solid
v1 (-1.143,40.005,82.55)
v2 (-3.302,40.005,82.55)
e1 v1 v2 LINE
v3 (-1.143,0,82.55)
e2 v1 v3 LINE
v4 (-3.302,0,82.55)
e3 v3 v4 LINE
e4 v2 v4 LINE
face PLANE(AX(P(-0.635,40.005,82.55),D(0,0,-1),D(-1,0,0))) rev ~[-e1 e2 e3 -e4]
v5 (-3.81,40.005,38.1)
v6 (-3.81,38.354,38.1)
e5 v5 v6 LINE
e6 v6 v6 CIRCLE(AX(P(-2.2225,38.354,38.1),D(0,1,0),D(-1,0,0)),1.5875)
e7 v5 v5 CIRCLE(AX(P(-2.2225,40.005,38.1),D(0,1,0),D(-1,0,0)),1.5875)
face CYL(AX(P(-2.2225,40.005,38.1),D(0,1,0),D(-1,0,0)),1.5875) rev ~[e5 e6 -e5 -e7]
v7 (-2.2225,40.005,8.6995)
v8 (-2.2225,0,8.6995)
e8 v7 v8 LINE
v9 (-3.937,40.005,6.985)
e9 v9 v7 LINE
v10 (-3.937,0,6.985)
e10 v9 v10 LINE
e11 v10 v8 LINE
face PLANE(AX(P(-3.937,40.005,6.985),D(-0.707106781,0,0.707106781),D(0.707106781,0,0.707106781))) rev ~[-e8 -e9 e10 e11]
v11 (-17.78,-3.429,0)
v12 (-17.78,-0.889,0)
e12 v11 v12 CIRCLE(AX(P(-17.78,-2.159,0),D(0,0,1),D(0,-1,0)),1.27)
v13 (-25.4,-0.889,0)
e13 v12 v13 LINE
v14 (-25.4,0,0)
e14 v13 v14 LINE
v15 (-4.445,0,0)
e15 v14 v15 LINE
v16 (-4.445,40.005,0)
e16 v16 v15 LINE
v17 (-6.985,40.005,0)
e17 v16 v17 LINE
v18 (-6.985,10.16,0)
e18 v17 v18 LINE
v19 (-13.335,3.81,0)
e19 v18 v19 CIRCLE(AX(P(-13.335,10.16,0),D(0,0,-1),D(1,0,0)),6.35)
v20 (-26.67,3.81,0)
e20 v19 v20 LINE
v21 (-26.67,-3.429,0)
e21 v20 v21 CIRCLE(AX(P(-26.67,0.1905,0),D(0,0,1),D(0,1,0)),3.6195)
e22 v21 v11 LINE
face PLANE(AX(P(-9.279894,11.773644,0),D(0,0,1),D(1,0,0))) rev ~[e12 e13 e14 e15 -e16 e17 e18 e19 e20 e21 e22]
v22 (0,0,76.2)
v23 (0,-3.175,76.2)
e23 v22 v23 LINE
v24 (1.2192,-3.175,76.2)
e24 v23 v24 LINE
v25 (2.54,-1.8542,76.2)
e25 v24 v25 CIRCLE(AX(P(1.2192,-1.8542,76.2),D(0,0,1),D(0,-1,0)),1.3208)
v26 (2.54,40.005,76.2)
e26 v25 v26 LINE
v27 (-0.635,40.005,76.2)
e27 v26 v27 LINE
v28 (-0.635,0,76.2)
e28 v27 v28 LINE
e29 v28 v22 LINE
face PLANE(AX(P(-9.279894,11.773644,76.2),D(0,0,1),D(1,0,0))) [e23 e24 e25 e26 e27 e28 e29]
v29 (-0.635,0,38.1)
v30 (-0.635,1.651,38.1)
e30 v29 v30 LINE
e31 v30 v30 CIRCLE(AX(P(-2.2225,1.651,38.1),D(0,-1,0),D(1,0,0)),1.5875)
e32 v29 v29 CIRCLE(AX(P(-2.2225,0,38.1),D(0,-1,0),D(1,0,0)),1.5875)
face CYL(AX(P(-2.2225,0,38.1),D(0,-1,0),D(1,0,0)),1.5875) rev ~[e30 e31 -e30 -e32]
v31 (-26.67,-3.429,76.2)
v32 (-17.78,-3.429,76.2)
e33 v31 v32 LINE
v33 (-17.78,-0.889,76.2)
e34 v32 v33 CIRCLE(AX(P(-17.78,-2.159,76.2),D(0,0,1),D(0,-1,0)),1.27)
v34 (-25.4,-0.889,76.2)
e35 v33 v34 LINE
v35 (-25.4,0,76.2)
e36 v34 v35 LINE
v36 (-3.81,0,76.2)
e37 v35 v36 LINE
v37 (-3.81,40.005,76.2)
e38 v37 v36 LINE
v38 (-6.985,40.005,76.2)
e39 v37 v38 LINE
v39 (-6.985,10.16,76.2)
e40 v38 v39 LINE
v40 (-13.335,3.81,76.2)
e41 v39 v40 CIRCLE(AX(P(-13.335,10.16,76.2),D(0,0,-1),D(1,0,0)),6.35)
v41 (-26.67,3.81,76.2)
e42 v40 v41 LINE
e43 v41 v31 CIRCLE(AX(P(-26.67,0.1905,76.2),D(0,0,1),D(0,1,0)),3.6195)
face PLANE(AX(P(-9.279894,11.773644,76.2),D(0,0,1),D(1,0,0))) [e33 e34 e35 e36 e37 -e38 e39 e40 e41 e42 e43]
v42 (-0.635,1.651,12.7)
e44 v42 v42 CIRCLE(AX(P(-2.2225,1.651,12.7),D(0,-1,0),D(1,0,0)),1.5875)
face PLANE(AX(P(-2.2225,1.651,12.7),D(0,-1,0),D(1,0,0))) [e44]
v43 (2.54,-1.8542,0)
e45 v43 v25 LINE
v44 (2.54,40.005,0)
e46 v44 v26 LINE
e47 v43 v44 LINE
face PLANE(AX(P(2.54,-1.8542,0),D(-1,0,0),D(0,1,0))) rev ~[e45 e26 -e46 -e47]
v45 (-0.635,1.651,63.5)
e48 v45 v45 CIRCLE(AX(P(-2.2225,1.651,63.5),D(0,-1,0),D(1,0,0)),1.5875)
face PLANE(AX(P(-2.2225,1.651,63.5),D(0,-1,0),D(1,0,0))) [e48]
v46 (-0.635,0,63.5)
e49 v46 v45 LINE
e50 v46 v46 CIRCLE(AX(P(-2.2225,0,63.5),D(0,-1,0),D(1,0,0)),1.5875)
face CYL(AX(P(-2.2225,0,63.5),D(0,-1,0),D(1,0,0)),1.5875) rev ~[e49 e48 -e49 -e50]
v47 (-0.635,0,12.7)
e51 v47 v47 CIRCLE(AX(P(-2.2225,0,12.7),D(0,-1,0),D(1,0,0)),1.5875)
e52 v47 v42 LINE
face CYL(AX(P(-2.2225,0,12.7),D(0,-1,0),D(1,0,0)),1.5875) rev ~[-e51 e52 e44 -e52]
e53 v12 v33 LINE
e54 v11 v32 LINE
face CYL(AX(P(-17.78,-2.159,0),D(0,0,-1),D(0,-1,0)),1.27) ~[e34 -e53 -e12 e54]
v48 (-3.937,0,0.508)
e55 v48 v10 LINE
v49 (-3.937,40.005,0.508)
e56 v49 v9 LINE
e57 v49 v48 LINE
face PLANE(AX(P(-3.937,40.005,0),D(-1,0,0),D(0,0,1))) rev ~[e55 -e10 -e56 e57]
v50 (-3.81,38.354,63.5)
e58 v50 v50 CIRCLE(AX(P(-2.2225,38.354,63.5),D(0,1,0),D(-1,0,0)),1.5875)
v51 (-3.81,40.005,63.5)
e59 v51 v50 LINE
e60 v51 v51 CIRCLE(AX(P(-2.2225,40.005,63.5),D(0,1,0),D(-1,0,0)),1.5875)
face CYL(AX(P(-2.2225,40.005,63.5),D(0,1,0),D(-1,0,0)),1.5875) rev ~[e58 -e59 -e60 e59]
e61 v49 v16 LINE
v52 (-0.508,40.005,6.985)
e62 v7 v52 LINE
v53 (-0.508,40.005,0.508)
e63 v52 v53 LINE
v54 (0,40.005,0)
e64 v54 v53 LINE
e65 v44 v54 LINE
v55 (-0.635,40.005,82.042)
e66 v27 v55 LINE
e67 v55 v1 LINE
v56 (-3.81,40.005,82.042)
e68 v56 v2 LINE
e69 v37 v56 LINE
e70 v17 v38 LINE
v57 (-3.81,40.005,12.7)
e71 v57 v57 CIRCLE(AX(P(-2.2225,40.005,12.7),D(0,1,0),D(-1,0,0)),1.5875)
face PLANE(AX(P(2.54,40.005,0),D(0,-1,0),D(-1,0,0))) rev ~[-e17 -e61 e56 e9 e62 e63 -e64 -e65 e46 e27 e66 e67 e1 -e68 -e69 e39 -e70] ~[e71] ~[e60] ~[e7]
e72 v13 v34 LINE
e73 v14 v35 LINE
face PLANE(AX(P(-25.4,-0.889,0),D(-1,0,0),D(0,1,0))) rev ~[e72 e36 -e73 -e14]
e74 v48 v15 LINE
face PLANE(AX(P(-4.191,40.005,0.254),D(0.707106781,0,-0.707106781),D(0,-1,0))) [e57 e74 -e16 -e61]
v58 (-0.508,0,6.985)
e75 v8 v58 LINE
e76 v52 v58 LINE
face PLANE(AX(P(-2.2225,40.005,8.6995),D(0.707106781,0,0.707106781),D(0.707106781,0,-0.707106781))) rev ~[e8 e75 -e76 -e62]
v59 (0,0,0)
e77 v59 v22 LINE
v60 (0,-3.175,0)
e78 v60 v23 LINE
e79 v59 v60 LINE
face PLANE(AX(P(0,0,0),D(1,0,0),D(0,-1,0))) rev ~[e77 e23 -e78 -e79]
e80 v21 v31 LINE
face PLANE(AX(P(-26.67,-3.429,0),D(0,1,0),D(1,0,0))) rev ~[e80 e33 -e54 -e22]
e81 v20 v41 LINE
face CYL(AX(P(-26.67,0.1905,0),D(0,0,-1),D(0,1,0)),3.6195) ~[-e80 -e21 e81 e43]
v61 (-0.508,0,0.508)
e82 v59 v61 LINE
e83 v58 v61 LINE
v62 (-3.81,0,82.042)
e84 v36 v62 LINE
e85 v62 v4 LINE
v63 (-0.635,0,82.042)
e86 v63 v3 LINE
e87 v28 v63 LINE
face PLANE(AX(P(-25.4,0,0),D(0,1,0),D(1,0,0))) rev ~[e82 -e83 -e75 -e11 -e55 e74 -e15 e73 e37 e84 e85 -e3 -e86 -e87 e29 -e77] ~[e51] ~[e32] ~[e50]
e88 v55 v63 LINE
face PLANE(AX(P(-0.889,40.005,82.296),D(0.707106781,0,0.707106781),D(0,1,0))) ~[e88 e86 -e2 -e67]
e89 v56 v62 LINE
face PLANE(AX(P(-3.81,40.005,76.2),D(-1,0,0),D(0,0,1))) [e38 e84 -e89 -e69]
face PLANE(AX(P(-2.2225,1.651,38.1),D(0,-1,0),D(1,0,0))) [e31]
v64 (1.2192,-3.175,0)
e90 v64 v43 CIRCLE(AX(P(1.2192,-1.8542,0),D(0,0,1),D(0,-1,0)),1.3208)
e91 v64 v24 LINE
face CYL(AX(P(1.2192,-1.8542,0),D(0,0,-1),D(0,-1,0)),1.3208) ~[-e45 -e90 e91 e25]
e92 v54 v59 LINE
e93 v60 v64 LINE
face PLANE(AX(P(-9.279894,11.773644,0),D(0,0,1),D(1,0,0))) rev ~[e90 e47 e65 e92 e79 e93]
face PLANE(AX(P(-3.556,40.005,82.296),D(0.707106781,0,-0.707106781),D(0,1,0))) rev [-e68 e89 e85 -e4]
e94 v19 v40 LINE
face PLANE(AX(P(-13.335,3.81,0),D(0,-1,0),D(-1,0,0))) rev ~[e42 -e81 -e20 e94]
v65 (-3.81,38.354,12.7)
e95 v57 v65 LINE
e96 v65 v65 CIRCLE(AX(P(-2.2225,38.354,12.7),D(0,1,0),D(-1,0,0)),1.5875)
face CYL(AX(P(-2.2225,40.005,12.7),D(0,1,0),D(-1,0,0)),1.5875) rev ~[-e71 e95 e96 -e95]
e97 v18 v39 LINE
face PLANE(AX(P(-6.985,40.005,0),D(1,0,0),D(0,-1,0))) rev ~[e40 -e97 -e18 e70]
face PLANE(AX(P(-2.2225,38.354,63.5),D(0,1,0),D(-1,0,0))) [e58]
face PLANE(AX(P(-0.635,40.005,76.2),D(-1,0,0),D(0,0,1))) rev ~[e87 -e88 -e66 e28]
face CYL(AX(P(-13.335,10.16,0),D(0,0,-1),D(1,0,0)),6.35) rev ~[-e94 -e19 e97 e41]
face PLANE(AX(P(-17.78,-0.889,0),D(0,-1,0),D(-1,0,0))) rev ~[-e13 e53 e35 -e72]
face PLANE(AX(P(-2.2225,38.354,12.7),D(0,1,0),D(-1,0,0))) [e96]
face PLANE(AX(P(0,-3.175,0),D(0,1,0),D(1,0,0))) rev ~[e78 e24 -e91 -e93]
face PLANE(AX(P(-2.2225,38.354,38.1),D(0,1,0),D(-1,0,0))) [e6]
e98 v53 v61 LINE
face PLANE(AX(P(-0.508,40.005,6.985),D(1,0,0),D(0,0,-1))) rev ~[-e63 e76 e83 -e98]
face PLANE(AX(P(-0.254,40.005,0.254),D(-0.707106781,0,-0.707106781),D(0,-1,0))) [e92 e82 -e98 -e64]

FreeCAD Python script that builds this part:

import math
import FreeCAD as App
import Part
import Sketcher
from FreeCAD import Vector
Q = App.Units.Quantity


def edges_at(feature, points):
    """Names of the edges that pass closest to the given points."""
    edges = feature.Shape.Edges
    near = lambda p: min(range(len(edges)), key=lambda i: edges[i].distToShape(Part.Vertex(*p))[0])
    return sorted({f"Edge{near(p) + 1}" for p in points})


def add_polygon(sketch, points):
    """Adds a closed chain of lines whose ends are joined by coincident constraints."""
    first, n = sketch.GeometryCount, len(points)
    for a, b in zip(points, points[1:] + points[:1]):
        sketch.addGeometry(Part.LineSegment(App.Vector(*a, 0), App.Vector(*b, 0)), False)
    for i in range(n):
        sketch.addConstraint(Sketcher.Constraint("Coincident", first + i, 2, first + (i + 1) % n, 1))

doc = App.newDocument("Part")
body = doc.addObject("PartDesign::Body", "Body")

sketch1 = body.newObject("Sketcher::SketchObject", "Sketch")
sketch1.AttachmentSupport = (doc.getObject("XY_Plane"), [""])
sketch1.MapMode = "FlatFace"
sketch1.addGeometry([
    Part.LineSegment(Vector(2.5, 40, 0), Vector(-7, 40, 0)),
    Part.LineSegment(Vector(-7, 40, 0), Vector(-7, 10.2, 0)),
    Part.ArcOfCircle(Part.Circle(Vector(-13.3, 10.2, 0), Vector(0, 0, 1), 6.3), math.radians(-90), math.radians(0)),
    Part.LineSegment(Vector(-13.3, 3.8, 0), Vector(-26.7, 3.8, 0)),
    Part.ArcOfCircle(Part.Circle(Vector(-26.7, 0.2, 0), Vector(0, 0, 1), 3.6), math.radians(90), math.radians(270)),
    Part.LineSegment(Vector(-26.7, -3.4, 0), Vector(-17.8, -3.4, 0)),
    Part.ArcOfCircle(Part.Circle(Vector(-17.8, -2.2, 0), Vector(0, 0, 1), 1.3), math.radians(-90), math.radians(90)),
    Part.LineSegment(Vector(-17.8, -0.9, 0), Vector(-25.4, -0.9, 0)),
    Part.LineSegment(Vector(-25.4, -0.9, 0), Vector(-25.4, 0, 0)),
    Part.LineSegment(Vector(-25.4, 0, 0), Vector(0, 0, 0)),
    Part.LineSegment(Vector(0, 0, 0), Vector(0, -3.2, 0)),
    Part.LineSegment(Vector(0, -3.2, 0), Vector(1.2, -3.2, 0)),
    Part.ArcOfCircle(Part.Circle(Vector(1.2, -1.9, 0), Vector(0, 0, 1), 1.3), math.radians(-90), math.radians(0)),
    Part.LineSegment(Vector(2.5, -1.9, 0), Vector(2.5, 40, 0)),
], False)
sketch1.addConstraint([
    Sketcher.Constraint("Coincident", 0, 2, 1, 1),
    Sketcher.Constraint("Tangent", 1, 2, 2, 2),
    Sketcher.Constraint("Tangent", 2, 1, 3, 1),
    Sketcher.Constraint("Tangent", 3, 2, 4, 1),
    Sketcher.Constraint("Tangent", 4, 2, 5, 1),
    Sketcher.Constraint("Tangent", 5, 2, 6, 1),
    Sketcher.Constraint("Tangent", 6, 2, 7, 1),
    Sketcher.Constraint("Coincident", 7, 2, 8, 1),
    Sketcher.Constraint("Coincident", 8, 2, 9, 1),
    Sketcher.Constraint("Coincident", 9, 2, 10, 1),
    Sketcher.Constraint("Coincident", 10, 2, 11, 1),
    Sketcher.Constraint("Tangent", 11, 2, 12, 1),
    Sketcher.Constraint("Tangent", 12, 2, 13, 1),
    Sketcher.Constraint("Coincident", 13, 2, 0, 1),
    Sketcher.Constraint("Horizontal", 0),
    Sketcher.Constraint("Vertical", 1),
    Sketcher.Constraint("Horizontal", 3),
    Sketcher.Constraint("Horizontal", 5),
    Sketcher.Constraint("Horizontal", 7),
    Sketcher.Constraint("Vertical", 8),
    Sketcher.Constraint("Horizontal", 9),
    Sketcher.Constraint("Vertical", 10),
    Sketcher.Constraint("Horizontal", 11),
    Sketcher.Constraint("Vertical", 13),
    Sketcher.Constraint("Coincident", 9, 2, -1, 1),
    Sketcher.Constraint("DistanceX", 9, 1, 9, 2, Q("1 in")),
    Sketcher.Constraint("Radius", 2, Q("0.25 in")),
    Sketcher.Constraint("Radius", 6, Q("0.05 in")),
    Sketcher.Constraint("DistanceX", 7, 2, 7, 1, Q("0.3 in")),
    Sketcher.Constraint("Radius", 12, Q("0.052 in")),
    Sketcher.Constraint("DistanceX", 5, 1, 5, 2, Q("0.35 in")),
    Sketcher.Constraint("DistanceY", -1, 1, 2, 3, Q("0.4 in")),
    Sketcher.Constraint("DistanceX", -1, 1, 12, 2, Q("0.1 in")),
    Sketcher.Constraint("Radius", 4, Q("0.1425 in")),
    Sketcher.Constraint("DistanceX", 0, 2, 0, 1, Q("0.375 in")),
    Sketcher.Constraint("DistanceY", 1, 2, 1, 1, Q("1.175 in")),
    Sketcher.Constraint("DistanceY", 10, 2, 10, 1, Q("0.125 in")),
])
pad1 = body.newObject("PartDesign::Pad", "Pad")
pad1.Profile = sketch1
pad1.Length = Q("3 in")

sketch2 = body.newObject("Sketcher::SketchObject", "Sketch001")
sketch2.AttachmentSupport = (doc.getObject("XZ_Plane"), [""])
sketch2.MapMode = "FlatFace"
sketch2.AttachmentOffset = App.Placement(Vector(0, 0, -1.575 * 25.4), App.Rotation())
add_polygon(sketch2, [(-0.5, 7), (-0.5, 0), (-3.9, 0), (-3.9, 7), (-2.2, 8.7)])
sketch2.addConstraint([
    Sketcher.Constraint("Vertical", 0),
    Sketcher.Constraint("Horizontal", 1),
    Sketcher.Constraint("Vertical", 2),
    Sketcher.Constraint("PointOnObject", 0, 2, -1),
    Sketcher.Constraint("Perpendicular", 3, 4),
    Sketcher.Constraint("Horizontal", 2, 2, 4, 2),
    Sketcher.Constraint("Equal", 3, 4),
    Sketcher.Constraint("DistanceX", 1, 2, 1, 1, Q("0.135 in")),
    Sketcher.Constraint("DistanceY", 0, 2, 0, 1, Q("0.275 in")),
    Sketcher.Constraint("DistanceX", 0, 2, -1, 1, Q("0.02 in")),
])
pocket1 = body.newObject("PartDesign::Pocket", "Pocket")
pocket1.Profile = sketch2
pocket1.Type = "ThroughAll"
pocket1.Reversed = True

sketch3 = body.newObject("Sketcher::SketchObject", "Sketch002")
sketch3.AttachmentSupport = (doc.getObject("XZ_Plane"), [""])
sketch3.MapMode = "FlatFace"
sketch3.AttachmentOffset = App.Placement(Vector(0, 0, -1.575 * 25.4), App.Rotation())
add_polygon(sketch3, [(-0.6, 82.5), (-0.6, 76.2), (-3.8, 76.2), (-3.8, 82.5)])
sketch3.addConstraint([
    Sketcher.Constraint("Vertical", 0),
    Sketcher.Constraint("Horizontal", 1),
    Sketcher.Constraint("Vertical", 2),
    Sketcher.Constraint("Horizontal", 3),
    Sketcher.Constraint("DistanceY", -1, 1, 0, 2, Q("3 in")),
    Sketcher.Constraint("DistanceY", 0, 2, 0, 1, Q("0.25 in")),
    Sketcher.Constraint("DistanceX", 1, 2, 1, 1, Q("0.125 in")),
    Sketcher.Constraint("DistanceX", 1, 2, -1, 1, Q("0.15 in")),
])
pad2 = body.newObject("PartDesign::Pad", "Pad001")
pad2.Profile = sketch3
pad2.Length = Q("1.575 in")
doc.recompute()

chamfer = body.newObject("PartDesign::Chamfer", "Chamfer")
chamfer.Base = (pad2, edges_at(pad2, [
    (-3.937, 20.003, 0),
    (-0.508, 20.003, 0),
    (-0.635, 20.003, 82.55),
    (-3.81, 20.003, 82.55),
]))
chamfer.Size = Q("0.02 in")

sketch4 = body.newObject("Sketcher::SketchObject", "Sketch003")
sketch4.AttachmentSupport = (doc.getObject("XZ_Plane"), [""])
sketch4.MapMode = "FlatFace"
sketch4.AttachmentOffset = App.Placement(Vector(0, 0, -1.575 * 25.4), App.Rotation())
sketch4.addGeometry([
    Part.Circle(Vector(-2.2, 12.7, 0), Vector(0, 0, 1), 1.6),
    Part.Circle(Vector(-2.2, 38.1, 0), Vector(0, 0, 1), 1.6),
    Part.Circle(Vector(-2.2, 63.5, 0), Vector(0, 0, 1), 1.6),
], False)
sketch4.addConstraint([
    Sketcher.Constraint("Equal", 0, 1),
    Sketcher.Constraint("Equal", 1, 2),
    Sketcher.Constraint("Vertical", 0, 3, 1, 3),
    Sketcher.Constraint("Vertical", 1, 3, 2, 3),
    Sketcher.Constraint("Diameter", 0, Q("0.125 in")),
    Sketcher.Constraint("DistanceY", 0, 3, 1, 3, Q("1 in")),
    Sketcher.Constraint("DistanceY", 1, 3, 2, 3, Q("1 in")),
    Sketcher.Constraint("DistanceY", -1, 1, 0, 3, Q("0.5 in")),
    Sketcher.Constraint("DistanceX", 0, 3, -1, 1, Q("0.0875 in")),
])
pocket2 = body.newObject("PartDesign::Pocket", "Pocket001")
pocket2.Profile = sketch4
pocket2.Length = Q("0.065 in")
pocket2.Reversed = True

sketch5 = body.newObject("Sketcher::SketchObject", "Sketch004")
sketch5.AttachmentSupport = (doc.getObject("XZ_Plane"), [""])
sketch5.MapMode = "FlatFace"
sketch5.addGeometry([
    Part.Circle(Vector(-2.2, 12.7, 0), Vector(0, 0, 1), 1.6),
    Part.Circle(Vector(-2.2, 38.1, 0), Vector(0, 0, 1), 1.6),
    Part.Circle(Vector(-2.2, 63.5, 0), Vector(0, 0, 1), 1.6),
], False)
sketch5.addConstraint([
    Sketcher.Constraint("Equal", 0, 1),
    Sketcher.Constraint("Equal", 1, 2),
    Sketcher.Constraint("Vertical", 0, 3, 1, 3),
    Sketcher.Constraint("Vertical", 1, 3, 2, 3),
    Sketcher.Constraint("Diameter", 0, Q("0.125 in")),
    Sketcher.Constraint("DistanceY", 0, 3, 1, 3, Q("1 in")),
    Sketcher.Constraint("DistanceY", 1, 3, 2, 3, Q("1 in")),
    Sketcher.Constraint("DistanceY", -1, 1, 0, 3, Q("0.5 in")),
    Sketcher.Constraint("DistanceX", 0, 3, -1, 1, Q("0.0875 in")),
])
pocket3 = body.newObject("PartDesign::Pocket", "Pocket002")
pocket3.Profile = sketch5
pocket3.Length = Q("0.065 in")

doc.recompute()
